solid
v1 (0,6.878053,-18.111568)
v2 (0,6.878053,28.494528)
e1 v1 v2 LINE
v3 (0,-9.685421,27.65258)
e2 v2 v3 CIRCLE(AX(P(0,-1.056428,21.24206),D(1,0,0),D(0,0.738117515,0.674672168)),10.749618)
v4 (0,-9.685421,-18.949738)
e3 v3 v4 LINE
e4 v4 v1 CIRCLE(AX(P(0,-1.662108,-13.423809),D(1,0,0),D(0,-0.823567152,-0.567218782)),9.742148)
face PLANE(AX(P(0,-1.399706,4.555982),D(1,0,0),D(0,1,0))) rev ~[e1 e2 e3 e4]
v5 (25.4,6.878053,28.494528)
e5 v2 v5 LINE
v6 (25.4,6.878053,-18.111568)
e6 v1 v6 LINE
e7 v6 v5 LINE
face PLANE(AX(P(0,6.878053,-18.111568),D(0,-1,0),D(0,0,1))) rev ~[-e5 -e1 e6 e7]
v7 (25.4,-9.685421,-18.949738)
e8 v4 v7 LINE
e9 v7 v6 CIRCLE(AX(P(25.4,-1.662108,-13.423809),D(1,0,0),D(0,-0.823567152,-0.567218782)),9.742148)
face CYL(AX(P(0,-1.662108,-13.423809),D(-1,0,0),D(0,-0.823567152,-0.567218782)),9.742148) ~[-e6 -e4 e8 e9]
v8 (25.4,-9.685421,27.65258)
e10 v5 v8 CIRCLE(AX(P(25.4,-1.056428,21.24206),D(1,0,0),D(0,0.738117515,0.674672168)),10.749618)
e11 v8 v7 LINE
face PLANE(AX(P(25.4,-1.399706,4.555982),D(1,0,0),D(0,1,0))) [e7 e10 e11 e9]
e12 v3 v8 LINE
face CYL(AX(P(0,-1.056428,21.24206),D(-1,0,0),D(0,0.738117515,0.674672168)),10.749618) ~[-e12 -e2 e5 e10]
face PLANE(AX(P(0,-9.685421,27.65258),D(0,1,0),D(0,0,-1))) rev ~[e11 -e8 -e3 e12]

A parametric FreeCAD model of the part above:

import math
import FreeCAD as App
import Part
import Sketcher
from FreeCAD import Vector
Q = App.Units.Quantity

doc = App.newDocument("Part")
body = doc.addObject("PartDesign::Body", "Body")

# Sketch on YZ plane
sketch1 = body.newObject("Sketcher::SketchObject", "Sketch")
sketch1.AttachmentSupport = (doc.getObject("YZ_Plane"), [""])
sketch1.MapMode = "FlatFace"
sketch1.addGeometry([
    Part.LineSegment(Vector(7, -18, 0), Vector(7, 28, 0)),
    Part.ArcOfCircle(Part.Circle(Vector(-1, 21, 0), Vector(0, 0, 1), 11), math.radians(42), math.radians(143)),
    Part.LineSegment(Vector(-10, 28, 0), Vector(-10, -19, 0)),
    Part.ArcOfCircle(Part.Circle(Vector(-2, -13, 0), Vector(0, 0, 1), 10), math.radians(-145), math.radians(-29)),
], False)
sketch1.addConstraint([
    Sketcher.Constraint("Coincident", 0, 2, 1, 1),
    Sketcher.Constraint("Coincident", 1, 2, 2, 1),
    Sketcher.Constraint("Coincident", 2, 2, 3, 1),
    Sketcher.Constraint("Coincident", 3, 2, 0, 1),
    Sketcher.Constraint("Vertical", 0),
    Sketcher.Constraint("Vertical", 2),
    Sketcher.Constraint("Radius", 1, 10.749618),
    Sketcher.Constraint("Radius", 3, 9.742148),
    Sketcher.Constraint("DistanceY", 2, 2, 1, 3, 40.191798),
    Sketcher.Constraint("DistanceY", 0, 1, 0, 2, 46.606096),
    Sketcher.Constraint("DistanceY", 2, 2, 2, 1, 46.602318),
    Sketcher.Constraint("DistanceX", 1, 3, -1, 1, 1.056428),
    Sketcher.Constraint("DistanceY", -1, 1, 1, 3, 21.24206),
    Sketcher.Constraint("DistanceX", 3, 3, -1, 1, 1.662108),
])
pad1 = body.newObject("PartDesign::Pad", "Pad")
pad1.Profile = sketch1
pad1.Length = Q("1 in")

doc.recompute()
